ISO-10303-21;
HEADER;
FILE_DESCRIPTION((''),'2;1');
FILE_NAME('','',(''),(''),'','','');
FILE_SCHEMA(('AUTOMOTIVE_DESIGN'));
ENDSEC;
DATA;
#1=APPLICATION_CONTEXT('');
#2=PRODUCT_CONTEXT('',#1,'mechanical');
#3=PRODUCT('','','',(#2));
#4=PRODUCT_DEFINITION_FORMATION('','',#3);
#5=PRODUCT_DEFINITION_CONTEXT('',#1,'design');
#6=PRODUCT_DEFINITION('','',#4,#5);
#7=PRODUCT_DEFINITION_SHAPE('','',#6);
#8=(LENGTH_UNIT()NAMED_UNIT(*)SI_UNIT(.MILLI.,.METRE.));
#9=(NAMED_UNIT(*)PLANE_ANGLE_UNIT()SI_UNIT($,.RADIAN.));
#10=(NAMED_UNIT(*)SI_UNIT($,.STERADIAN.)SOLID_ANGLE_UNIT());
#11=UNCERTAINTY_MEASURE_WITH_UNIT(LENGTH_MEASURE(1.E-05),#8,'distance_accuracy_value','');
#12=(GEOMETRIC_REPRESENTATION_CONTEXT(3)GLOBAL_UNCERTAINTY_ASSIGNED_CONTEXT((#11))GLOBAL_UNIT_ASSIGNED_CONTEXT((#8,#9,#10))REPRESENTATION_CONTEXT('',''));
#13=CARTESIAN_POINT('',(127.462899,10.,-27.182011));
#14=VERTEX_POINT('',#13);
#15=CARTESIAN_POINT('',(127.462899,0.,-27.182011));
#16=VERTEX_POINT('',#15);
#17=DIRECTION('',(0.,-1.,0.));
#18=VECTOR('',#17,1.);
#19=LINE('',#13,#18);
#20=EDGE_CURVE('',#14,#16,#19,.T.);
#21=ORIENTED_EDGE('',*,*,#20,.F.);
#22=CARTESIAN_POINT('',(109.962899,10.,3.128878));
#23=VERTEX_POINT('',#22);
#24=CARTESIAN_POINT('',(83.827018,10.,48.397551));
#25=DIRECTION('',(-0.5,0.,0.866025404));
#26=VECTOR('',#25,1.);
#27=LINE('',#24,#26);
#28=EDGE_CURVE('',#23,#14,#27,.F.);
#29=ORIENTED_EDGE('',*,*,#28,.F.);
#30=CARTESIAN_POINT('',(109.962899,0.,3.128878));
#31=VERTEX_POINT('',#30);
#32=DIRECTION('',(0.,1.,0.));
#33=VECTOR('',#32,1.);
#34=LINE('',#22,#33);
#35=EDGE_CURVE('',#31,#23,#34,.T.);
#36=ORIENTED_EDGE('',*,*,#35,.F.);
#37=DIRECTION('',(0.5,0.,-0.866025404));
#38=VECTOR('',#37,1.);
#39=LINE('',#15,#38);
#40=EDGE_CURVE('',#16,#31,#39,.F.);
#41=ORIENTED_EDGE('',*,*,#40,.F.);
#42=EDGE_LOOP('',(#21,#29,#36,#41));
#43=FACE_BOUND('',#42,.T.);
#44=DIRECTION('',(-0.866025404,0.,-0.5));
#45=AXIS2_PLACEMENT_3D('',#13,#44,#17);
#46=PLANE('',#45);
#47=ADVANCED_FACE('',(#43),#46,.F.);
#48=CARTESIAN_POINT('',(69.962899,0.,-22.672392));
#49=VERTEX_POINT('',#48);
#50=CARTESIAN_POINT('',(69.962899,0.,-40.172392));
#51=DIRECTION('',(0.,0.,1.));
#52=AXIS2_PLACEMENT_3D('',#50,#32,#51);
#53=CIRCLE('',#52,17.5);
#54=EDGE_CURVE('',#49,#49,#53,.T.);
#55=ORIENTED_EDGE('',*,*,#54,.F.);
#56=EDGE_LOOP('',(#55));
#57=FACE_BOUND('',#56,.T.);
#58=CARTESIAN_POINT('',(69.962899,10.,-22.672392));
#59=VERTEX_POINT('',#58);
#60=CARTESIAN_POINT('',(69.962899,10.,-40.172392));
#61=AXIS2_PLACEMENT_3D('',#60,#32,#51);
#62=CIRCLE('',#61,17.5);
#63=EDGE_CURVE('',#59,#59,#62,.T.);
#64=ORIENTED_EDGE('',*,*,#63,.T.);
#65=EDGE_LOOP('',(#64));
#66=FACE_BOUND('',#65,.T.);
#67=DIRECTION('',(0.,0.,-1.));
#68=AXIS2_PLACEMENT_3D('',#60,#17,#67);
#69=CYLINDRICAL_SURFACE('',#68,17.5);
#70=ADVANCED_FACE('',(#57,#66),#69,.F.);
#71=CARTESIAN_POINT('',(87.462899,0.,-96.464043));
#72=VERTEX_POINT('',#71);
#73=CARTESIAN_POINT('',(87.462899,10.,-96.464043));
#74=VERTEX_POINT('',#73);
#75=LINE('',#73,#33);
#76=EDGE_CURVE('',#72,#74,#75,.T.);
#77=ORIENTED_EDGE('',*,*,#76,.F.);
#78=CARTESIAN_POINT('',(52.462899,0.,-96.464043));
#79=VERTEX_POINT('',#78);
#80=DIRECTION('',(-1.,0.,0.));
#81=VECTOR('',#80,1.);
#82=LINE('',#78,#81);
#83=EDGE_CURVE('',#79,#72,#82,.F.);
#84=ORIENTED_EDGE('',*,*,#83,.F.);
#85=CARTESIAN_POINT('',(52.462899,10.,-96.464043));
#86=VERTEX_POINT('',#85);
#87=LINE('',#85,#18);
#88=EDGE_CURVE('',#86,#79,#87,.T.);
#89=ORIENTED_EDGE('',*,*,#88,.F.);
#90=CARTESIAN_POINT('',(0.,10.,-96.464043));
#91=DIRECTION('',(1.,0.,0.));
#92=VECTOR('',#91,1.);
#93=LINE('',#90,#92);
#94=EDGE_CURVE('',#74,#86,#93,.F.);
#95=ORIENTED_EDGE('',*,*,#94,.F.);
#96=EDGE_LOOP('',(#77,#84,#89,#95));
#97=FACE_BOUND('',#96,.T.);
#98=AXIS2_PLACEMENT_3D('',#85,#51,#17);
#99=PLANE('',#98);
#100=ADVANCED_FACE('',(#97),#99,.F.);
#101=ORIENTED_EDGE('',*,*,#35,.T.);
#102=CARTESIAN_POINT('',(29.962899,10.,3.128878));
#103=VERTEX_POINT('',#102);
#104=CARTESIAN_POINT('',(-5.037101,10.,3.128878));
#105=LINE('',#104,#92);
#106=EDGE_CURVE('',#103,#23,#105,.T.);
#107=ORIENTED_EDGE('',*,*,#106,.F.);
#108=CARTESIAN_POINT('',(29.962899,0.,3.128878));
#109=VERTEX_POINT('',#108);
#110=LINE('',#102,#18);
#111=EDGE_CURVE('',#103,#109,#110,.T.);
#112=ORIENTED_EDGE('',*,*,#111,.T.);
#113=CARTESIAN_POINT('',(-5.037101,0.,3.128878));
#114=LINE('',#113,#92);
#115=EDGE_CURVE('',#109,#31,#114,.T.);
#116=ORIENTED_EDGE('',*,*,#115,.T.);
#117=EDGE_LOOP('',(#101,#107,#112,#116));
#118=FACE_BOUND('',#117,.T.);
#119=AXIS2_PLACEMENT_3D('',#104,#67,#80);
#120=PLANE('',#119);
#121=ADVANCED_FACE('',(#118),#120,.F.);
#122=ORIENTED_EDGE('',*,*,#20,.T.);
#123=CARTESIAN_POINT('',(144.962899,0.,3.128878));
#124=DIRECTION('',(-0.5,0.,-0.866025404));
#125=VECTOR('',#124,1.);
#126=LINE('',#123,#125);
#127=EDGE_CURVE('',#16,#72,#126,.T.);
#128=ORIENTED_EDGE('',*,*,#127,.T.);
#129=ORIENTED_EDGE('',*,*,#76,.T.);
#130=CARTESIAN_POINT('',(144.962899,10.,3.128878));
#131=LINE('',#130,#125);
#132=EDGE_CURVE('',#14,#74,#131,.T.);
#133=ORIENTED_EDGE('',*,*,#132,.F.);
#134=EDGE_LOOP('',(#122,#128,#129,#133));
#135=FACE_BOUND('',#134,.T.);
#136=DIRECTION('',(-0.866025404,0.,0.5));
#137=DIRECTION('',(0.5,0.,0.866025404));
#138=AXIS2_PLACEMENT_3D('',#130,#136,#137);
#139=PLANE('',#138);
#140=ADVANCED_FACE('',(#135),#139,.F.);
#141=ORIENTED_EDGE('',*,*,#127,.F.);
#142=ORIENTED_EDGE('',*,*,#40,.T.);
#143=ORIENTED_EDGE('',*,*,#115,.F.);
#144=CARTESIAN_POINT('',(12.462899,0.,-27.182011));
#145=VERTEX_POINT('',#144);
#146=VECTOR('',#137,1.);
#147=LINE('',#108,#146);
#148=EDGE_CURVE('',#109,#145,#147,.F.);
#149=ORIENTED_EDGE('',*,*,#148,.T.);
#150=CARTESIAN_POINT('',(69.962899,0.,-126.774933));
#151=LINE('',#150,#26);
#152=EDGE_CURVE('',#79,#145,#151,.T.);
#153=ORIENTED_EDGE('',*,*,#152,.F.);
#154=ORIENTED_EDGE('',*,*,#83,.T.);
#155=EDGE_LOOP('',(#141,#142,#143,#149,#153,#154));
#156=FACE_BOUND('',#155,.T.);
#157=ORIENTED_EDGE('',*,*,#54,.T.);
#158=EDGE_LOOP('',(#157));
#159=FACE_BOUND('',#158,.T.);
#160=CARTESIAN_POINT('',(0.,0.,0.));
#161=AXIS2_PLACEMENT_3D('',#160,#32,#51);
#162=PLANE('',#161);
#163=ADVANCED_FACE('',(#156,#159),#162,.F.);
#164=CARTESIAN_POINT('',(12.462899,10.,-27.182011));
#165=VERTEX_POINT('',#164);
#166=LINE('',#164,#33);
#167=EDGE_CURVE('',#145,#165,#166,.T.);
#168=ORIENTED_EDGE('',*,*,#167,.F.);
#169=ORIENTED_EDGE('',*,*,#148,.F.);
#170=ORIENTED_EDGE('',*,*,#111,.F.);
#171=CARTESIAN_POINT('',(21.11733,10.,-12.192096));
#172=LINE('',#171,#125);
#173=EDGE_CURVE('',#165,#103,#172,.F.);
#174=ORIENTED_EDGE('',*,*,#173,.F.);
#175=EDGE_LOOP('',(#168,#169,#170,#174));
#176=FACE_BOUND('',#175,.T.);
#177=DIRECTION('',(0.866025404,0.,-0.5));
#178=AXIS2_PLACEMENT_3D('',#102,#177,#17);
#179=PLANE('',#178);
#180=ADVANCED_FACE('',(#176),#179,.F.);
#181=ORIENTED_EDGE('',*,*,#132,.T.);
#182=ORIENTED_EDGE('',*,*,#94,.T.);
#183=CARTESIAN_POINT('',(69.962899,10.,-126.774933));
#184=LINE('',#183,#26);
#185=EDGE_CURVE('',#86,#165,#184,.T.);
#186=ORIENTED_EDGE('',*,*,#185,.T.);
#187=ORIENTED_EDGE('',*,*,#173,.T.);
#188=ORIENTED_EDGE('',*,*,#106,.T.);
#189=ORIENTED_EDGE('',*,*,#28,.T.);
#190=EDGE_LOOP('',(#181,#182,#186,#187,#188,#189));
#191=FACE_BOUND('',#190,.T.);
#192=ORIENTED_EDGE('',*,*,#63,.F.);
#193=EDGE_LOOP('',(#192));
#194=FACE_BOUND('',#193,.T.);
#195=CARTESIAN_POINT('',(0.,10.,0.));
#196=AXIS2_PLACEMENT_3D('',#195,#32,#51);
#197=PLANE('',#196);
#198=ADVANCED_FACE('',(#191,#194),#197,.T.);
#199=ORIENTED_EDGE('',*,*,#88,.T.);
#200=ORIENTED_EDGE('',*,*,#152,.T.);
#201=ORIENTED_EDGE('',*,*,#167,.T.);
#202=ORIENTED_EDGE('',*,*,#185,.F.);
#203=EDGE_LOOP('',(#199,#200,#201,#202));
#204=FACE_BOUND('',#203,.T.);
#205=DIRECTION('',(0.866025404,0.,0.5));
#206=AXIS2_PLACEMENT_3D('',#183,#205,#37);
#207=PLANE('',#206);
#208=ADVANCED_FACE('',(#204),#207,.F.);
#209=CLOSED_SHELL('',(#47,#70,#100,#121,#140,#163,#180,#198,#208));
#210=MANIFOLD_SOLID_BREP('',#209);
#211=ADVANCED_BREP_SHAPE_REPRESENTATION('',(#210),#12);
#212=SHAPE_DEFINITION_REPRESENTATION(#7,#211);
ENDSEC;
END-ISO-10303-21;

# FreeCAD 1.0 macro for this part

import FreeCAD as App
import Part
import Sketcher

V = App.Vector
Q = App.Units.Quantity


def edges_at(feature, points):
    """Names of the edges that pass closest to the given points."""
    edges = feature.Shape.Edges
    near = lambda p: min(range(len(edges)), key=lambda i: edges[i].distToShape(Part.Vertex(*p))[0])
    return sorted({f"Edge{near(p) + 1}" for p in points})

doc = App.newDocument("Part")
body = doc.addObject("PartDesign::Body", "Body")

# Sketch on XZ plane
sketch1 = body.newObject("Sketcher::SketchObject", "Sketch")
sketch1.AttachmentSupport = (doc.getObject("XZ_Plane"), [""])
sketch1.MapMode = "FlatFace"
sketch1.addGeometry([
    Part.LineSegment(V(-5.037101, 3.128878, 0), V(144.962899, 3.128878, 0)),
    Part.LineSegment(V(144.962899, 3.128878, 0), V(69.962899, -126.774933, 0)),
    Part.LineSegment(V(69.962899, -126.774933, 0), V(-5.037101, 3.128878, 0)),
    Part.Circle(V(69.962899, -40.172392, 0), V(0, 0, 1), 17.5),
], False)
sketch1.addConstraint([
    Sketcher.Constraint("Coincident", 0, 2, 1, 1),
    Sketcher.Constraint("Coincident", 1, 2, 2, 1),
    Sketcher.Constraint("Coincident", 2, 2, 0, 1),
    Sketcher.Constraint("Horizontal", 0),
    Sketcher.Constraint("Vertical", 3, 3, 1, 2),
    Sketcher.Constraint("Equal", 1, 2),
    Sketcher.Constraint("Diameter", 3, 35.0),
    Sketcher.Constraint("DistanceX", 0, 1, 0, 2, 150.0),
    Sketcher.Constraint("Angle", 1, Q("-120 deg")),
    Sketcher.Constraint("DistanceX", -1, 1, 3, 3, 69.962899),
    Sketcher.Constraint("DistanceY", -1, 1, 0, 2, 3.128878),
    Sketcher.Constraint("DistanceY", 3, 3, 0, 2, 43.30127),
])
pad1 = body.newObject("PartDesign::Pad", "Pad")
pad1.Profile = sketch1
pad1.Length = 10
pad1.Reversed = True
doc.recompute()

chamfer = body.newObject("PartDesign::Chamfer", "Chamfer")
chamfer.Base = (pad1, edges_at(pad1, [(69.963, 5, -126.775)]))
chamfer.Size = 35
doc.recompute()

chamfer2 = body.newObject("PartDesign::Chamfer", "Chamfer001")
chamfer2.Base = (chamfer, edges_at(chamfer, [(144.963, 5, 3.129)]))
chamfer2.Size = 35
doc.recompute()

chamfer3 = body.newObject("PartDesign::Chamfer", "Chamfer002")
chamfer3.Base = (chamfer2, edges_at(chamfer2, [(-5.037, 5, 3.129)]))
chamfer3.Size = 35

doc.recompute()
